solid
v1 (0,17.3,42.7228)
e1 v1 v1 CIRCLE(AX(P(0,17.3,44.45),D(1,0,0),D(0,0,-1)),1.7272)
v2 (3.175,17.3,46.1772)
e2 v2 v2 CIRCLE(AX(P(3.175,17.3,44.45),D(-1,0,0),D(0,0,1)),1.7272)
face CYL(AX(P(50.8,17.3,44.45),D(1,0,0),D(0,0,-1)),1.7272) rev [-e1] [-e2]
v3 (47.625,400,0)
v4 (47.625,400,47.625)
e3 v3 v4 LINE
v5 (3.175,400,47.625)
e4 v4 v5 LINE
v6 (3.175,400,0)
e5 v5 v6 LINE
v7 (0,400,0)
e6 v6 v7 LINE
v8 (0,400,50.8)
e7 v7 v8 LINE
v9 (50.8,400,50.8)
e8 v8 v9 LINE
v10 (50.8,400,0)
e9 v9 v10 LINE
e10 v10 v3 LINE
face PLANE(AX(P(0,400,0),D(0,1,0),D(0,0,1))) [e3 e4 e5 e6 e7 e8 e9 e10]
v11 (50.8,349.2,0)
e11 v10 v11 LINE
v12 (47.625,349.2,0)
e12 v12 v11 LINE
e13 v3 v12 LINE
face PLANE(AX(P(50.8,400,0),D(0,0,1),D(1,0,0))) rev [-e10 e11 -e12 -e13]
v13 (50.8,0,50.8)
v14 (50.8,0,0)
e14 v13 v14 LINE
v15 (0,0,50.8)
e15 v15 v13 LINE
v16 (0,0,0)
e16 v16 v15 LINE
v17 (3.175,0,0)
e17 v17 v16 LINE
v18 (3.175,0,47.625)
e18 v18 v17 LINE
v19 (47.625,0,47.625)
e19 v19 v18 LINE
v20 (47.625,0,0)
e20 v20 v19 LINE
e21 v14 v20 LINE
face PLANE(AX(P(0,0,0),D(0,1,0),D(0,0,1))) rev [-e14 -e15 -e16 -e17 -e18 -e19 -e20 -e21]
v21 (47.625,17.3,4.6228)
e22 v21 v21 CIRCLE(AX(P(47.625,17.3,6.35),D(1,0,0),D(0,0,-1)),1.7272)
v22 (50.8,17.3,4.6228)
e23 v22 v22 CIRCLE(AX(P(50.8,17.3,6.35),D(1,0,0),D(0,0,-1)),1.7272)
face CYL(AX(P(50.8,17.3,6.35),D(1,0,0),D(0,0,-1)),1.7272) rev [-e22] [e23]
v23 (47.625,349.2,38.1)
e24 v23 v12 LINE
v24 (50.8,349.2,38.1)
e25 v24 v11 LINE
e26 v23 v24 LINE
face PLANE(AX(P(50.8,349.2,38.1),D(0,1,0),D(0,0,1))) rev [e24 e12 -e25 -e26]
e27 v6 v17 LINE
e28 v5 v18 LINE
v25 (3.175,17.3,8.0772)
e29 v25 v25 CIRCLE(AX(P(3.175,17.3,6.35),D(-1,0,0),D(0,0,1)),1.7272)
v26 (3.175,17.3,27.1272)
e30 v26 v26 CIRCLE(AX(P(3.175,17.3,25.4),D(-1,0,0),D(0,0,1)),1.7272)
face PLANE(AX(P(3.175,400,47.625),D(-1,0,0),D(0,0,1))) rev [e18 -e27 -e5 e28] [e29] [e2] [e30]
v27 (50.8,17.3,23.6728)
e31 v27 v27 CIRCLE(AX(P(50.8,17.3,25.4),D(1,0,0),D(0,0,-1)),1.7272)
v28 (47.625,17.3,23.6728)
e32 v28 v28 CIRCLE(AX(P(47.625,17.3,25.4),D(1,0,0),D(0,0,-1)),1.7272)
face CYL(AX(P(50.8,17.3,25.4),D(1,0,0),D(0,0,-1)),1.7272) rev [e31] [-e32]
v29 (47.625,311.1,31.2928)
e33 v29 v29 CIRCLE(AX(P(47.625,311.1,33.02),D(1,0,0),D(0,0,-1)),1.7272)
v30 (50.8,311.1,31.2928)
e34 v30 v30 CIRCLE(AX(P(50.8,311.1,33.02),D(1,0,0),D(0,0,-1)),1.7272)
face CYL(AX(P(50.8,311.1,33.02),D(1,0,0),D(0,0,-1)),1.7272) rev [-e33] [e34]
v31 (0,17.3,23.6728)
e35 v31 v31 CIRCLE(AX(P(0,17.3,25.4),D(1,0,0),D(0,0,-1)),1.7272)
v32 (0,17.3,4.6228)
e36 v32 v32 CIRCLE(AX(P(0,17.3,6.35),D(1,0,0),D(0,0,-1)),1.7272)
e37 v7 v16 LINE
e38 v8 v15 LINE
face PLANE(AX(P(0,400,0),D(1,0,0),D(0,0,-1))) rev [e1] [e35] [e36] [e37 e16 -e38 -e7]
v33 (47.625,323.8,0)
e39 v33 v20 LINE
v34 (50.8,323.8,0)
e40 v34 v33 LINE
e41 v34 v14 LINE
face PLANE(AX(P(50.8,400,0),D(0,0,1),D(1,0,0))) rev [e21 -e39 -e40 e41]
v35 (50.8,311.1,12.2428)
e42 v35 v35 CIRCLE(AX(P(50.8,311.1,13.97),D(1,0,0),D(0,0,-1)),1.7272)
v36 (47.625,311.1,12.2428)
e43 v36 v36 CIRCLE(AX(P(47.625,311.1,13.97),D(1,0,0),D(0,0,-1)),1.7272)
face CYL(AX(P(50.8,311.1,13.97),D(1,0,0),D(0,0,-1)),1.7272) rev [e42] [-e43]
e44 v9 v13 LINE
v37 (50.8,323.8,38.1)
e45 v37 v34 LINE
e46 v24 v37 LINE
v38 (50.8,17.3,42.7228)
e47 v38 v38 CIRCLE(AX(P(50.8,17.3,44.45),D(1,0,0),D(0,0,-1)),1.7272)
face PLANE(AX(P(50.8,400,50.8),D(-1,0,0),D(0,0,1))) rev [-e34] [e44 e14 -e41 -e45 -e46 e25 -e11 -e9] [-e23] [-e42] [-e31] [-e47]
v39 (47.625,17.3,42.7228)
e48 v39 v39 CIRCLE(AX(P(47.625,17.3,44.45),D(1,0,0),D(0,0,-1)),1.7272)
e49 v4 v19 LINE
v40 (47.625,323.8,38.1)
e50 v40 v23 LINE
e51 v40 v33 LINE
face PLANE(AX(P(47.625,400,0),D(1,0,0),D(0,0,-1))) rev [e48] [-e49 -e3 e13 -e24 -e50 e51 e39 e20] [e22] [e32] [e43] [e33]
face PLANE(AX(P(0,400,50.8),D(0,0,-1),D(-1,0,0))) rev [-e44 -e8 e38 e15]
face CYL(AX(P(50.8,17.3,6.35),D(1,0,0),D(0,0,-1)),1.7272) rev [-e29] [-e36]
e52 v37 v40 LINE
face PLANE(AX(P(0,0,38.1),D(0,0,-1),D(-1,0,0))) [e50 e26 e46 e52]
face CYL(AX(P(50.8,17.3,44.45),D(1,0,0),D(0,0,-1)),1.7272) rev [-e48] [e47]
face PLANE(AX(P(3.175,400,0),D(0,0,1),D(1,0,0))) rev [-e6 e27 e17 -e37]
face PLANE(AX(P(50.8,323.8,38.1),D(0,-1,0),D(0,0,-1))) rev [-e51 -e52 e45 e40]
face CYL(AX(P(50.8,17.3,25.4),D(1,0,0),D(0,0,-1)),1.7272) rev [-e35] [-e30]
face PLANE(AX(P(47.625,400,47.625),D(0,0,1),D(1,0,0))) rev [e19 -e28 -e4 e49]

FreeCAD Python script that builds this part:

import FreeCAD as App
import Part
import Sketcher
from FreeCAD import Vector
Q = App.Units.Quantity


def add_polygon(sketch, points):
    """Adds a closed chain of lines whose ends are joined by coincident constraints."""
    first, n = sketch.GeometryCount, len(points)
    for a, b in zip(points, points[1:] + points[:1]):
        sketch.addGeometry(Part.LineSegment(App.Vector(*a, 0), App.Vector(*b, 0)), False)
    for i in range(n):
        sketch.addConstraint(Sketcher.Constraint("Coincident", first + i, 2, first + (i + 1) % n, 1))

doc = App.newDocument("Part")
params = doc.addObject("Spreadsheet::Sheet", "Params")
for row, (alias, value) in enumerate([
    ("sketch1_width", "2 in"),
    ("sketch1_width2", "1.75 in"),
    ("sketch1_height", "1.875 in"),
    ("pad1_length", "400 mm"),
    ("sketch2_height", "1 in"),
    ("sketch2_width", "0.125 in"),
    ("pocket1_length", "1.5 in"),
    ("sketch3_diameter", "0.136 in"),
    ("hole_diameter", "0.136 in"),
    ("sketch4_diameter", "0.136 in"),
    ("hole2_diameter", "0.136 in"),
    ("hole2_depth", "0.125 in"),
], start=1):
    params.set(f"A{row}", alias)
    params.set(f"B{row}", "=" + value)
    params.setAlias(f"B{row}", alias)

body = doc.addObject("PartDesign::Body", "Body")

# Sketch on XZ plane
sketch1 = body.newObject("Sketcher::SketchObject", "Sketch")
sketch1.AttachmentSupport = (doc.getObject("XZ_Plane"), [""])
sketch1.MapMode = "FlatFace"
add_polygon(sketch1, [(0, 0), (0, 50.8), (50.8, 50.8), (50.8, 0), (47.6, 0), (47.6, 47.6), (3.2, 47.6), (3.2, 0)])  # lines 0-7
sketch1.addConstraint([
    Sketcher.Constraint("Vertical", 0),
    Sketcher.Constraint("Horizontal", 1),
    Sketcher.Constraint("Vertical", 2),
    Sketcher.Constraint("Horizontal", 3),
    Sketcher.Constraint("Vertical", 4),
    Sketcher.Constraint("Horizontal", 5),
    Sketcher.Constraint("Vertical", 6),
    Sketcher.Constraint("Horizontal", 7),
    Sketcher.Constraint("Coincident", 7, 2, -1, 1),
    Sketcher.Constraint("PointOnObject", 2, 2, -1),
    Sketcher.Constraint("Equal", 3, 7),
    Sketcher.Constraint("Equal", 1, 0),
    Sketcher.Constraint("DistanceX", 1, 1, 1, 2, Q("2 in")),
    Sketcher.Constraint("DistanceX", 5, 2, 5, 1, Q("1.75 in")),
    Sketcher.Constraint("DistanceY", 4, 1, 4, 2, Q("1.875 in")),
])
sketch1.setExpression("Constraints[20]", "Params.sketch1_width")
sketch1.setExpression("Constraints[21]", "Params.sketch1_width2")
sketch1.setExpression("Constraints[22]", "Params.sketch1_height")
pad1 = body.newObject("PartDesign::Pad", "Pad")
pad1.Profile = sketch1
pad1.setExpression("Length", "Params.pad1_length")
pad1.Reversed = True

# Sketch on XY plane
sketch2 = body.newObject("Sketcher::SketchObject", "Sketch001")
sketch2.AttachmentSupport = (doc.getObject("XY_Plane"), [""])
sketch2.MapMode = "FlatFace"
add_polygon(sketch2, [(50.8, 349.2), (50.8, 323.8), (47.6, 323.8), (47.6, 349.2)])  # lines 0-3
sketch2.addConstraint([
    Sketcher.Constraint("Vertical", 0),
    Sketcher.Constraint("Horizontal", 1),
    Sketcher.Constraint("Vertical", 2),
    Sketcher.Constraint("Horizontal", 3),
    Sketcher.Constraint("DistanceY", 0, 2, 0, 1, Q("1 in")),
    Sketcher.Constraint("DistanceX", -1, 1, 0, 2, Q("2 in")),
    Sketcher.Constraint("DistanceX", 1, 2, 1, 1, Q("0.125 in")),
    Sketcher.Constraint("DistanceY", -1, 1, 0, 2, Q("323.8 mm")),
])
sketch2.setExpression("Constraints[8]", "Params.sketch2_height")
sketch2.setExpression("Constraints[10]", "Params.sketch2_width")
pocket1 = body.newObject("PartDesign::Pocket", "Pocket")
pocket1.Profile = sketch2
pocket1.setExpression("Length", "Params.pocket1_length")
pocket1.Reversed = True

# Sketch on YZ plane
sketch3 = body.newObject("Sketcher::SketchObject", "Sketch002")
sketch3.AttachmentSupport = (doc.getObject("YZ_Plane"), [""])
sketch3.MapMode = "FlatFace"
sketch3.AttachmentOffset = App.Placement(Vector(0, 0, 2 * 25.4), App.Rotation())
sketch3.addGeometry([
    Part.Circle(Vector(17.3, 44.5, 0), Vector(0, 0, 1), 1.7),
    Part.Circle(Vector(17.3, 25.4, 0), Vector(0, 0, 1), 1.7),
    Part.Circle(Vector(17.3, 6.3, 0), Vector(0, 0, 1), 1.7),
], False)
sketch3.addConstraint([
    Sketcher.Constraint("Equal", 0, 1),
    Sketcher.Constraint("Equal", 1, 2),
    Sketcher.Constraint("Vertical", 0, 3, 1, 3),
    Sketcher.Constraint("Vertical", 1, 3, 2, 3),
    Sketcher.Constraint("Diameter", 0, Q("0.136 in")),
    Sketcher.Constraint("DistanceY", -1, 1, 1, 3, Q("1 in")),
    Sketcher.Constraint("DistanceY", 2, 3, 0, 3, Q("1.5 in")),
    Sketcher.Constraint("DistanceY", -1, 1, 0, 3, Q("1.75 in")),
    Sketcher.Constraint("DistanceX", -1, 1, 0, 3, Q("17.3 mm")),
])
sketch3.setExpression("Constraints[4]", "Params.sketch3_diameter")
doc.recompute()
hole = body.newObject("PartDesign::Hole", "Hole")
hole.Profile = sketch3
hole.ThreadType = "None"
hole.setExpression("Diameter", "Params.hole_diameter")
hole.DepthType = "ThroughAll"

# Sketch on YZ plane
sketch4 = body.newObject("Sketcher::SketchObject", "Sketch003")
sketch4.AttachmentSupport = (doc.getObject("YZ_Plane"), [""])
sketch4.MapMode = "FlatFace"
sketch4.AttachmentOffset = App.Placement(Vector(0, 0, 2 * 25.4), App.Rotation())
sketch4.addGeometry([
    Part.Circle(Vector(311.1, 33, 0), Vector(0, 0, 1), 1.7),
    Part.Circle(Vector(311.1, 14, 0), Vector(0, 0, 1), 1.7),
], False)
sketch4.addConstraint([
    Sketcher.Constraint("Equal", 0, 1),
    Sketcher.Constraint("Vertical", 0, 3, 1, 3),
    Sketcher.Constraint("Diameter", 0, Q("0.136 in")),
    Sketcher.Constraint("DistanceY", -1, 1, 0, 3, Q("1.3 in")),
    Sketcher.Constraint("DistanceY", -1, 1, 1, 3, Q("0.55 in")),
    Sketcher.Constraint("DistanceX", -1, 1, 0, 3, Q("311.1 mm")),
])
sketch4.setExpression("Constraints[2]", "Params.sketch4_diameter")
doc.recompute()
hole2 = body.newObject("PartDesign::Hole", "Hole001")
hole2.Profile = sketch4
hole2.ThreadType = "None"
hole2.setExpression("Diameter", "Params.hole2_diameter")
hole2.DepthType = "Dimension"
hole2.setExpression("Depth", "Params.hole2_depth")
hole2.DrillPoint = "Flat"

doc.recompute()
